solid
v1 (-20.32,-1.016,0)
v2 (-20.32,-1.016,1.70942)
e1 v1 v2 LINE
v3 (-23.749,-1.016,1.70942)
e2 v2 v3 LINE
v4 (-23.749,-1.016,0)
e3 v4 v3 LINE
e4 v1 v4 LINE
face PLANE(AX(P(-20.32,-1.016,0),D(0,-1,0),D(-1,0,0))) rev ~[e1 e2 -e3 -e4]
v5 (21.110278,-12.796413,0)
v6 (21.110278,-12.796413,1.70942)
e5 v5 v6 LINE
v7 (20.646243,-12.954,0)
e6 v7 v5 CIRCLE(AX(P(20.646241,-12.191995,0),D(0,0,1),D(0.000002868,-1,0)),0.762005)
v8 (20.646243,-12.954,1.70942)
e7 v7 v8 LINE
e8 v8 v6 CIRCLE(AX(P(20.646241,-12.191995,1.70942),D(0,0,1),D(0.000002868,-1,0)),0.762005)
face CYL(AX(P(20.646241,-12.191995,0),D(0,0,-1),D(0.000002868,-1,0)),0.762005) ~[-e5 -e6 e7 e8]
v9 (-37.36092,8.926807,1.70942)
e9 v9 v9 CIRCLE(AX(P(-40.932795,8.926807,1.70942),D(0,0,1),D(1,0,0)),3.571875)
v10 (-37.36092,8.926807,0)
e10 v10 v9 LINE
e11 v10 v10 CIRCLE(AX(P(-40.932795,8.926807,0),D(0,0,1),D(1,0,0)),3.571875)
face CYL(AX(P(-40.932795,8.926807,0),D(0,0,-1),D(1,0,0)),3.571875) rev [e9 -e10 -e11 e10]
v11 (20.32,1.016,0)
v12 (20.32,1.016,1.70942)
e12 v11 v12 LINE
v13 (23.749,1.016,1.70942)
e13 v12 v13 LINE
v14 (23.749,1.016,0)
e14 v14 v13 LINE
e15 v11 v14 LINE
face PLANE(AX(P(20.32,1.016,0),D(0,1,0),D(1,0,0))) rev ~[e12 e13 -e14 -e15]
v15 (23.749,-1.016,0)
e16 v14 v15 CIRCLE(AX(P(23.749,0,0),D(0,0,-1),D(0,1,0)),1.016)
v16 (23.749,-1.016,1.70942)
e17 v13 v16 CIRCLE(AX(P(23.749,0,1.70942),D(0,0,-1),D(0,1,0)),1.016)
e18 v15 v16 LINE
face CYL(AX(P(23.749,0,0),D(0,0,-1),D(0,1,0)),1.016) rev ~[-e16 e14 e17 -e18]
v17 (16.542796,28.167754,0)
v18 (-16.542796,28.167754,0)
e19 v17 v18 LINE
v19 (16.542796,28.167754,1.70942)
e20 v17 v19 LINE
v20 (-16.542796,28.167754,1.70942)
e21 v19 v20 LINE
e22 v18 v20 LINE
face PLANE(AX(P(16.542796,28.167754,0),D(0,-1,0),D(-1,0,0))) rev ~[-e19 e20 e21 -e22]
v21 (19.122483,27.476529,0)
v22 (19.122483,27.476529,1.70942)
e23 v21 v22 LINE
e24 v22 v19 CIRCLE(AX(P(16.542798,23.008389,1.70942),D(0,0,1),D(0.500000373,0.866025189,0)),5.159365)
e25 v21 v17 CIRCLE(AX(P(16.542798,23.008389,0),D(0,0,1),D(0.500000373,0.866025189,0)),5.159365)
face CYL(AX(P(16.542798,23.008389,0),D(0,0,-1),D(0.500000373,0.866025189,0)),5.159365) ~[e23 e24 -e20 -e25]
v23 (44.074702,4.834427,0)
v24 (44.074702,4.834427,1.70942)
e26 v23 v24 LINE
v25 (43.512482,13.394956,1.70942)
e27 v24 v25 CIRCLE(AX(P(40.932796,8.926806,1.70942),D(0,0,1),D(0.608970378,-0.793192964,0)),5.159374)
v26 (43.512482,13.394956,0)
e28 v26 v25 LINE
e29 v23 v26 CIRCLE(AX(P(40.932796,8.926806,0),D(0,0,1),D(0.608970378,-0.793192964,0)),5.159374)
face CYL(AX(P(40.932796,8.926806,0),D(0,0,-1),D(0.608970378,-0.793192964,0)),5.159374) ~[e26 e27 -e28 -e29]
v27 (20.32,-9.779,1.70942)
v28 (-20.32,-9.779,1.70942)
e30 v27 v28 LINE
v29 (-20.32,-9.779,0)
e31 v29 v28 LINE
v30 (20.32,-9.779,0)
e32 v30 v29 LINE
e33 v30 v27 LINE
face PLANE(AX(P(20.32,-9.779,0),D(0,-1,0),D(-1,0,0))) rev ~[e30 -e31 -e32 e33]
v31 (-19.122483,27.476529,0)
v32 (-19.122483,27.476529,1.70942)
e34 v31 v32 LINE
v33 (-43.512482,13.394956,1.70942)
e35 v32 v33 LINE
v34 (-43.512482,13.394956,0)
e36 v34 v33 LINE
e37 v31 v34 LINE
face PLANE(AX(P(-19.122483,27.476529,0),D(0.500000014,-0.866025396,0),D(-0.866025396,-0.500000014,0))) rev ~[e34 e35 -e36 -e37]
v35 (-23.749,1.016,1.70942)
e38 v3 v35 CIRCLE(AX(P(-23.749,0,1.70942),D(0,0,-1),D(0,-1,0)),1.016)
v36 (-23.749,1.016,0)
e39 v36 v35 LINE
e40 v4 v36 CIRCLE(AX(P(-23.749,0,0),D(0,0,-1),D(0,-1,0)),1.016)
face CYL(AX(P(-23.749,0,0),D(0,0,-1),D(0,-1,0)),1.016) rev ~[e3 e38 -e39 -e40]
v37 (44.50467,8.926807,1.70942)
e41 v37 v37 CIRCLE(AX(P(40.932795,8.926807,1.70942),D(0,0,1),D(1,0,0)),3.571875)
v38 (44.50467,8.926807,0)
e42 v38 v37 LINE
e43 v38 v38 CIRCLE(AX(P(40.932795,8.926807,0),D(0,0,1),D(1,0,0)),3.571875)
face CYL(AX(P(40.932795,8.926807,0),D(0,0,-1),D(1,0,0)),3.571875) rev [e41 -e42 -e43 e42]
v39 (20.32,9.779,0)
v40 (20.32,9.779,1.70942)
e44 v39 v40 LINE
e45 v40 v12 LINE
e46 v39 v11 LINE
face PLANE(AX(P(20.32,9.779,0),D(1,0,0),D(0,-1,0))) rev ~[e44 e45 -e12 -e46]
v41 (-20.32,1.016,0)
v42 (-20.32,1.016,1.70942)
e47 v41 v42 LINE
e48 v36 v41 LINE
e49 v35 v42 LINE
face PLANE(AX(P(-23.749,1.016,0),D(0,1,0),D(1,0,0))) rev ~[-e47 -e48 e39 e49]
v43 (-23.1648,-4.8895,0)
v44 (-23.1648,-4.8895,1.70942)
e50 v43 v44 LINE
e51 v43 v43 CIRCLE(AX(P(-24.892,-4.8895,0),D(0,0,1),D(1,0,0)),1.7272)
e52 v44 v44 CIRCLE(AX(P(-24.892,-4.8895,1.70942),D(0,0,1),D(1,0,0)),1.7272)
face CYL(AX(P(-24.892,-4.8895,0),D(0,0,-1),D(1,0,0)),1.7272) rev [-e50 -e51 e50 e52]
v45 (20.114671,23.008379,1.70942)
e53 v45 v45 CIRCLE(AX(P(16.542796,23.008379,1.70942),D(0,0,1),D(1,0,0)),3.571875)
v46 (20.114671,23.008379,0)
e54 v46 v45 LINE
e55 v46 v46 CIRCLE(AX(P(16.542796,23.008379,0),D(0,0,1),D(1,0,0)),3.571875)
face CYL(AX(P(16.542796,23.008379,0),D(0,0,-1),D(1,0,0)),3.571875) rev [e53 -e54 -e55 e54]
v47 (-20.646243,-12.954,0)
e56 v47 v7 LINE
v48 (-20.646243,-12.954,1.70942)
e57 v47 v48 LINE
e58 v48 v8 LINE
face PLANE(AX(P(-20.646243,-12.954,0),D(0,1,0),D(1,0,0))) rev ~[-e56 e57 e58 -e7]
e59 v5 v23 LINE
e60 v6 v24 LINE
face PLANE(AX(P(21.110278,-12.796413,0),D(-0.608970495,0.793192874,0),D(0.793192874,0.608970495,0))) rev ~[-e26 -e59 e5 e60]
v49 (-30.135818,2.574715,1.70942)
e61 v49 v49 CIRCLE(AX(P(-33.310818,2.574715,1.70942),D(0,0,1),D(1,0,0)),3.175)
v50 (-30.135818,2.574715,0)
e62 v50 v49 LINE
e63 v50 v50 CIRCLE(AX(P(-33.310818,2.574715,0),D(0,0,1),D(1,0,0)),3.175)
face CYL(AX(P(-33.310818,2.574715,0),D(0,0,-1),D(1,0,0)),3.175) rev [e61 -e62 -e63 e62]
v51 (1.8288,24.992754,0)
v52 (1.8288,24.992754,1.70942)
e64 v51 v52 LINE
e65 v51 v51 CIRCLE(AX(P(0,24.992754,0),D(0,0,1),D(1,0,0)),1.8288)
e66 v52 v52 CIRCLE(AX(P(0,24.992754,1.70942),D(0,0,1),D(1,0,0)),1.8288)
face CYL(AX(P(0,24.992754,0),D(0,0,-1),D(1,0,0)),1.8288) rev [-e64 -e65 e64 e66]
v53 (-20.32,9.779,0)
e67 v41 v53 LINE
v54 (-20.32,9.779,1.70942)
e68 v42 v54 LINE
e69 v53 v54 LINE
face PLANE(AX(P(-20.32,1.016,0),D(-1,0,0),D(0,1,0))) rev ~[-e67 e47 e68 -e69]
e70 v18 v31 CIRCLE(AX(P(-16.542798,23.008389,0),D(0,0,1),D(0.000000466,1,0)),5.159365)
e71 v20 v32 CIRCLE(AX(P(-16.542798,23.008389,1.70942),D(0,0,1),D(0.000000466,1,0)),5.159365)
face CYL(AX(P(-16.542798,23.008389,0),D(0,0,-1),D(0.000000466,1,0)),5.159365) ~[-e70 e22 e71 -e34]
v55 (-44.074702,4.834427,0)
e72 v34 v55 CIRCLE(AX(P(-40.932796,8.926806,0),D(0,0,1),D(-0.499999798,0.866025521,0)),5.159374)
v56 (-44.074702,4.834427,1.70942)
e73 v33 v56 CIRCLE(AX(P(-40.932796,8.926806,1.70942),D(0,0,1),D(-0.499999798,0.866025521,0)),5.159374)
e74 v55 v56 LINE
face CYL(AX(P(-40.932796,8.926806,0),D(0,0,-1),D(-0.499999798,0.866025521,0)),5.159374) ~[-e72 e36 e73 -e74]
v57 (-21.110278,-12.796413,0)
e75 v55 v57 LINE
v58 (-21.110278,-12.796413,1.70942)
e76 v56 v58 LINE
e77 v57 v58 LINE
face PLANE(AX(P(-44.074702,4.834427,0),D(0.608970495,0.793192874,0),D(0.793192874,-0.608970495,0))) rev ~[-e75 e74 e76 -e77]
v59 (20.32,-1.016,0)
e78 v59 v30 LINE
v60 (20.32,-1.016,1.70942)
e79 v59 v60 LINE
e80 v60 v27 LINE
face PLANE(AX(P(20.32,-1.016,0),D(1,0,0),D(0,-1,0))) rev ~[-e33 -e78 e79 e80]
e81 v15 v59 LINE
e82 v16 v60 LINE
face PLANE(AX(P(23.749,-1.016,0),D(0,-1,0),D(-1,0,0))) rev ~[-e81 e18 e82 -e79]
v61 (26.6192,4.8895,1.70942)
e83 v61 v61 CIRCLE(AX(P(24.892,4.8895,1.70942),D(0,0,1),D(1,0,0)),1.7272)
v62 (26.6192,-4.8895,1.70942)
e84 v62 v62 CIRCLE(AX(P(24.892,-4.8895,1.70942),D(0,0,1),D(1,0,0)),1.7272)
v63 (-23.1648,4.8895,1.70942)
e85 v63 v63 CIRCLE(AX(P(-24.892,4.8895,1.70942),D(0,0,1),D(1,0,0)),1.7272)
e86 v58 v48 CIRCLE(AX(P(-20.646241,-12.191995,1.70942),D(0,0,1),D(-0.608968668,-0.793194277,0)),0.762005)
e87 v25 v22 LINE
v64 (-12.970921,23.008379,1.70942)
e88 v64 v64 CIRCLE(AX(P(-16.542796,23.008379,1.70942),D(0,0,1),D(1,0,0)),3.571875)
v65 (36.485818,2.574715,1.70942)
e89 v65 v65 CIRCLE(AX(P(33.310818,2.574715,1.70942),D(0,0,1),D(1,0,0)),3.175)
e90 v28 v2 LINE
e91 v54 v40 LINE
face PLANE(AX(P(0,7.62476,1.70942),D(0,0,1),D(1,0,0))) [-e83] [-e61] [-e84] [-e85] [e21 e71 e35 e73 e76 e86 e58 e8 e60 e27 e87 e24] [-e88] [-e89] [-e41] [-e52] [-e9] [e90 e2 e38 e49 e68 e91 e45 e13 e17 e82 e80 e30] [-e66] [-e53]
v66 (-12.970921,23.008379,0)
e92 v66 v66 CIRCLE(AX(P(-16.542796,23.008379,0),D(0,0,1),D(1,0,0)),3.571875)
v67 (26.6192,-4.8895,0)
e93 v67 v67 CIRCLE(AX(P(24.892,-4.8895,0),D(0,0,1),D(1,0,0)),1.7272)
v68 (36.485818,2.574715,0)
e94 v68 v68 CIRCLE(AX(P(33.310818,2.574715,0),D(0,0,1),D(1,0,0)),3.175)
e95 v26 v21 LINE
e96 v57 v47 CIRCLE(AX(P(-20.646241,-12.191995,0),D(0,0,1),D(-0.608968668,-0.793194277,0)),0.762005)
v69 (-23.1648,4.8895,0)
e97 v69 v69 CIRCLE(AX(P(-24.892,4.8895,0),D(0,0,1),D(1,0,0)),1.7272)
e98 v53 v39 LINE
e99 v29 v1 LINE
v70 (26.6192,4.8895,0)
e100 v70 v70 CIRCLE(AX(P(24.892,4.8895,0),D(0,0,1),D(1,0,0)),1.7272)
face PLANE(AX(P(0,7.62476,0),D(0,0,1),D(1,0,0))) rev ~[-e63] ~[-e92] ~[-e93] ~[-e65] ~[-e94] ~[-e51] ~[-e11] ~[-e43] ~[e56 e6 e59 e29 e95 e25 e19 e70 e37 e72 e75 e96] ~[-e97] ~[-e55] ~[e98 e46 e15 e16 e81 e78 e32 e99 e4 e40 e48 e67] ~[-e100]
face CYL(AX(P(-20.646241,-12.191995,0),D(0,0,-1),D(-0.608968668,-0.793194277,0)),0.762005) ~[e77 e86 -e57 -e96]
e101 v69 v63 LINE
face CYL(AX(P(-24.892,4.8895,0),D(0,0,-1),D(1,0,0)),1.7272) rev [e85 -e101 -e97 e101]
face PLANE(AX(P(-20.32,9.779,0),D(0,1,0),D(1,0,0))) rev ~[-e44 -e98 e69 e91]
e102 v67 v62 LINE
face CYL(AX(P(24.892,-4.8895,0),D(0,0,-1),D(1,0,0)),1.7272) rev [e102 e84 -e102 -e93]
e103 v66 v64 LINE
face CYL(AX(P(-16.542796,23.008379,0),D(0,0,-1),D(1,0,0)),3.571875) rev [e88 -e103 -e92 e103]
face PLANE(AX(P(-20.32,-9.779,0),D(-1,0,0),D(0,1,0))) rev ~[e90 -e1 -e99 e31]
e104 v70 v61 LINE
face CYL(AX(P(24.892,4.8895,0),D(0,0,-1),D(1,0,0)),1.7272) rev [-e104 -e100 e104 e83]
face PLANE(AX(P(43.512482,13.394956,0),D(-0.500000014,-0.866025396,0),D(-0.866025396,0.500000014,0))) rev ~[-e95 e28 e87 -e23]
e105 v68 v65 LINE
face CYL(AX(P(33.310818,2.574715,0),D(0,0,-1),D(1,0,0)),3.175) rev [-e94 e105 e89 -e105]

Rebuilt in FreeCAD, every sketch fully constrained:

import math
import FreeCAD as App
import Part
import Sketcher
Q = App.Units.Quantity

doc = App.newDocument("Part")
params = doc.addObject("Spreadsheet::Sheet", "Params")
for row, (alias, value) in enumerate([
    ("sketch1_diameter", "0.25 in"),
    ("sketch1_radius", "0.0300002 in"),
    ("sketch1_radius2", "0.04 in"),
    ("sketch1_diameter2", "0.136 in"),
    ("sketch1_diameter3", "0.28125 in"),
    ("pad1_length", "0.0673 in"),
], start=1):
    params.set(f"A{row}", alias)
    params.set(f"B{row}", "=" + value)
    params.setAlias(f"B{row}", alias)

body = doc.addObject("PartDesign::Body", "Body")

# Sketch on XY plane
sketch1 = body.newObject("Sketcher::SketchObject", "Sketch")
sketch1.AttachmentSupport = (doc.getObject("XY_Plane"), [""])
sketch1.MapMode = "FlatFace"
sketch1.addGeometry(Part.LineSegment(App.Vector(16.54, 28.17, 0), App.Vector(-16.54, 28.17, 0)), False)
sketch1.addGeometry(Part.ArcOfCircle(Part.Circle(App.Vector(-16.54, 23.01, 0), App.Vector(0, 0, 1), 5.16), math.radians(90), math.radians(120)), False)
sketch1.addGeometry(Part.LineSegment(App.Vector(-19.12, 27.48, 0), App.Vector(-43.51, 13.39, 0)), False)
sketch1.addGeometry(Part.ArcOfCircle(Part.Circle(App.Vector(-40.93, 8.93, 0), App.Vector(0, 0, 1), 5.16), math.radians(120), math.radians(232)), False)
sketch1.addGeometry(Part.LineSegment(App.Vector(-44.07, 4.83, 0), App.Vector(-21.11, -12.8, 0)), False)
sketch1.addGeometry(Part.ArcOfCircle(Part.Circle(App.Vector(-20.65, -12.19, 0), App.Vector(0, 0, 1), 0.76), math.radians(-128), math.radians(-90)), False)
sketch1.addGeometry(Part.LineSegment(App.Vector(-20.65, -12.95, 0), App.Vector(20.65, -12.95, 0)), False)
sketch1.addGeometry(Part.ArcOfCircle(Part.Circle(App.Vector(20.65, -12.19, 0), App.Vector(0, 0, 1), 0.76), math.radians(-90), math.radians(-52)), False)
sketch1.addGeometry(Part.LineSegment(App.Vector(21.11, -12.8, 0), App.Vector(44.07, 4.83, 0)), False)
sketch1.addGeometry(Part.ArcOfCircle(Part.Circle(App.Vector(40.93, 8.93, 0), App.Vector(0, 0, 1), 5.16), math.radians(-52), math.radians(60)), False)
sketch1.addGeometry(Part.LineSegment(App.Vector(43.51, 13.39, 0), App.Vector(19.12, 27.48, 0)), False)
sketch1.addGeometry(Part.ArcOfCircle(Part.Circle(App.Vector(16.54, 23.01, 0), App.Vector(0, 0, 1), 5.16), math.radians(60), math.radians(90)), False)
sketch1.addGeometry(Part.Circle(App.Vector(-24.89, -4.89, 0), App.Vector(0, 0, 1), 1.73), False)
sketch1.addGeometry(Part.Circle(App.Vector(-33.31, 2.57, 0), App.Vector(0, 0, 1), 3.17), False)
sketch1.addGeometry(Part.Circle(App.Vector(-24.89, 4.89, 0), App.Vector(0, 0, 1), 1.73), False)
sketch1.addGeometry(Part.Circle(App.Vector(24.89, -4.89, 0), App.Vector(0, 0, 1), 1.73), False)
sketch1.addGeometry(Part.ArcOfCircle(Part.Circle(App.Vector(23.75, 0, 0), App.Vector(0, 0, 1), 1.02), math.radians(-90), math.radians(90)), False)
sketch1.addGeometry(Part.LineSegment(App.Vector(23.75, -1.02, 0), App.Vector(20.32, -1.02, 0)), False)
sketch1.addGeometry(Part.LineSegment(App.Vector(20.32, -1.02, 0), App.Vector(20.32, -9.78, 0)), False)
sketch1.addGeometry(Part.LineSegment(App.Vector(20.32, -9.78, 0), App.Vector(-20.32, -9.78, 0)), False)
sketch1.addGeometry(Part.LineSegment(App.Vector(-20.32, -9.78, 0), App.Vector(-20.32, -1.02, 0)), False)
sketch1.addGeometry(Part.LineSegment(App.Vector(-20.32, -1.02, 0), App.Vector(-23.75, -1.02, 0)), False)
sketch1.addGeometry(Part.ArcOfCircle(Part.Circle(App.Vector(-23.75, 0, 0), App.Vector(0, 0, 1), 1.02), math.radians(90), math.radians(270)), False)
sketch1.addGeometry(Part.LineSegment(App.Vector(-23.75, 1.02, 0), App.Vector(-20.32, 1.02, 0)), False)
sketch1.addGeometry(Part.LineSegment(App.Vector(-20.32, 1.02, 0), App.Vector(-20.32, 9.78, 0)), False)
sketch1.addGeometry(Part.LineSegment(App.Vector(-20.32, 9.78, 0), App.Vector(20.32, 9.78, 0)), False)
sketch1.addGeometry(Part.LineSegment(App.Vector(20.32, 9.78, 0), App.Vector(20.32, 1.02, 0)), False)
sketch1.addGeometry(Part.LineSegment(App.Vector(20.32, 1.02, 0), App.Vector(23.75, 1.02, 0)), False)
sketch1.addGeometry(Part.Circle(App.Vector(33.31, 2.57, 0), App.Vector(0, 0, 1), 3.17), False)
sketch1.addGeometry(Part.Circle(App.Vector(24.89, 4.89, 0), App.Vector(0, 0, 1), 1.73), False)
sketch1.addGeometry(Part.Circle(App.Vector(-40.93, 8.93, 0), App.Vector(0, 0, 1), 3.57), False)
sketch1.addGeometry(Part.Circle(App.Vector(-16.54, 23.01, 0), App.Vector(0, 0, 1), 3.57), False)
sketch1.addGeometry(Part.Circle(App.Vector(40.93, 8.93, 0), App.Vector(0, 0, 1), 3.57), False)
sketch1.addGeometry(Part.Circle(App.Vector(0, 24.99, 0), App.Vector(0, 0, 1), 1.83), False)
sketch1.addGeometry(Part.Circle(App.Vector(16.54, 23.01, 0), App.Vector(0, 0, 1), 3.57), False)
sketch1.addConstraint(Sketcher.Constraint("Tangent", 0, 2, 1, 1))
sketch1.addConstraint(Sketcher.Constraint("Tangent", 1, 2, 2, 1))
sketch1.addConstraint(Sketcher.Constraint("Tangent", 2, 2, 3, 1))
sketch1.addConstraint(Sketcher.Constraint("Tangent", 3, 2, 4, 1))
sketch1.addConstraint(Sketcher.Constraint("Coincident", 4, 2, 5, 1))
sketch1.addConstraint(Sketcher.Constraint("Coincident", 5, 2, 6, 1))
sketch1.addConstraint(Sketcher.Constraint("Coincident", 6, 2, 7, 1))
sketch1.addConstraint(Sketcher.Constraint("Coincident", 7, 2, 8, 1))
sketch1.addConstraint(Sketcher.Constraint("Tangent", 8, 2, 9, 1))
sketch1.addConstraint(Sketcher.Constraint("Tangent", 9, 2, 10, 1))
sketch1.addConstraint(Sketcher.Constraint("Tangent", 10, 2, 11, 1))
sketch1.addConstraint(Sketcher.Constraint("Tangent", 11, 2, 0, 1))
sketch1.addConstraint(Sketcher.Constraint("Tangent", 16, 1, 17, 1))
sketch1.addConstraint(Sketcher.Constraint("Coincident", 17, 2, 18, 1))
sketch1.addConstraint(Sketcher.Constraint("Coincident", 18, 2, 19, 1))
sketch1.addConstraint(Sketcher.Constraint("Coincident", 19, 2, 20, 1))
sketch1.addConstraint(Sketcher.Constraint("Coincident", 20, 2, 21, 1))
sketch1.addConstraint(Sketcher.Constraint("Tangent", 21, 2, 22, 2))
sketch1.addConstraint(Sketcher.Constraint("Tangent", 22, 1, 23, 1))
sketch1.addConstraint(Sketcher.Constraint("Coincident", 23, 2, 24, 1))
sketch1.addConstraint(Sketcher.Constraint("Coincident", 24, 2, 25, 1))
sketch1.addConstraint(Sketcher.Constraint("Coincident", 25, 2, 26, 1))
sketch1.addConstraint(Sketcher.Constraint("Coincident", 26, 2, 27, 1))
sketch1.addConstraint(Sketcher.Constraint("Tangent", 27, 2, 16, 2))
sketch1.addConstraint(Sketcher.Constraint("Horizontal", 0))
sketch1.addConstraint(Sketcher.Constraint("Horizontal", 6))
sketch1.addConstraint(Sketcher.Constraint("Horizontal", 17))
sketch1.addConstraint(Sketcher.Constraint("Vertical", 18))
sketch1.addConstraint(Sketcher.Constraint("Horizontal", 19))
sketch1.addConstraint(Sketcher.Constraint("Vertical", 20))
sketch1.addConstraint(Sketcher.Constraint("Horizontal", 21))
sketch1.addConstraint(Sketcher.Constraint("Horizontal", 23))
sketch1.addConstraint(Sketcher.Constraint("Vertical", 24))
sketch1.addConstraint(Sketcher.Constraint("Horizontal", 25))
sketch1.addConstraint(Sketcher.Constraint("Vertical", 26))
sketch1.addConstraint(Sketcher.Constraint("Horizontal", 27))
sketch1.addConstraint(Sketcher.Constraint("Coincident", 30, 3, 3, 3))
sketch1.addConstraint(Sketcher.Constraint("Coincident", 31, 3, 1, 3))
sketch1.addConstraint(Sketcher.Constraint("Coincident", 32, 3, 9, 3))
sketch1.addConstraint(Sketcher.Constraint("Coincident", 34, 3, 11, 3))
sketch1.addConstraint(Sketcher.Constraint("Equal", 5, 7))
sketch1.addConstraint(Sketcher.Constraint("Equal", 3, 9))
sketch1.addConstraint(Sketcher.Constraint("Equal", 1, 11))
sketch1.addConstraint(Sketcher.Constraint("Equal", 12, 14))
sketch1.addConstraint(Sketcher.Constraint("Equal", 14, 15))
sketch1.addConstraint(Sketcher.Constraint("Equal", 16, 22))
sketch1.addConstraint(Sketcher.Constraint("Equal", 13, 28))
sketch1.addConstraint(Sketcher.Constraint("Equal", 15, 29))
sketch1.addConstraint(Sketcher.Constraint("Equal", 30, 31))
sketch1.addConstraint(Sketcher.Constraint("Equal", 31, 32))
sketch1.addConstraint(Sketcher.Constraint("Equal", 32, 34))
sketch1.addConstraint(Sketcher.Constraint("Symmetric", 14, 3, 15, 3, -1, 1))
sketch1.addConstraint(Sketcher.Constraint("Symmetric", 16, 3, 22, 3, -1, 1))
sketch1.addConstraint(Sketcher.Constraint("Symmetric", 12, 3, 29, 3, -1, 1))
sketch1.addConstraint(Sketcher.Constraint("Symmetric", 18, 2, 24, 2, -1, 1))
sketch1.addConstraint(Sketcher.Constraint("Symmetric", 3, 3, 9, 3, -2))
sketch1.addConstraint(Sketcher.Constraint("Symmetric", 12, 3, 15, 3, -2))
sketch1.addConstraint(Sketcher.Constraint("Symmetric", 13, 3, 28, 3, -2))
sketch1.addConstraint(Sketcher.Constraint("Symmetric", 4, 2, 7, 2, -2))
sketch1.addConstraint(Sketcher.Constraint("Symmetric", 17, 2, 20, 2, -2))
sketch1.addConstraint(Sketcher.Constraint("PointOnObject", 33, 3, -2))
sketch1.addConstraint(Sketcher.Constraint("Horizontal", 2, 2, 9, 2))
sketch1.addConstraint(Sketcher.Constraint("Vertical", 18, 2, 25, 2))
sketch1.addConstraint(Sketcher.Constraint("Diameter", 13, Q("0.25 in")))
sketch1.addConstraint(Sketcher.Constraint("Radius", 5, Q("0.0300002 in")))
sketch1.addConstraint(Sketcher.Constraint("Radius", 16, Q("0.04 in")))
sketch1.addConstraint(Sketcher.Constraint("Diameter", 12, Q("0.136 in")))
sketch1.addConstraint(Sketcher.Constraint("Diameter", 30, Q("0.28125 in")))
sketch1.addConstraint(Sketcher.Constraint("Diameter", 33, Q("0.144 in")))
sketch1.addConstraint(Sketcher.Constraint("DistanceX", 19, 2, 19, 1, Q("1.6 in")))
sketch1.addConstraint(Sketcher.Constraint("Angle", 2, Q("-149.999999 deg")))
sketch1.addConstraint(Sketcher.Constraint("Radius", 3, Q("0.203125 in")))
sketch1.addConstraint(Sketcher.Constraint("DistanceX", 17, 2, 17, 1, Q("0.135 in")))
sketch1.addConstraint(Sketcher.Constraint("DistanceY", 18, 2, 18, 1, Q("0.345 in")))
sketch1.addConstraint(Sketcher.Constraint("DistanceY", 5, 3, -1, 1, Q("0.4799998 in")))
sketch1.addConstraint(Sketcher.Constraint("DistanceX", 12, 3, -1, 1, Q("0.98 in")))
sketch1.addConstraint(Sketcher.Constraint("DistanceY", 12, 3, 14, 3, Q("0.385 in")))
sketch1.addConstraint(Sketcher.Constraint("DistanceY", 31, 3, 33, 3, Q("0.078125 in")))
sketch1.addConstraint(Sketcher.Constraint("DistanceY", 31, 3, 0, 2, Q("0.203125 in")))
sketch1.addConstraint(Sketcher.Constraint("DistanceX", 0, 2, 0, 1, 33.085592))
sketch1.addConstraint(Sketcher.Constraint("DistanceX", 3, 2, -1, 1, 44.074702))
sketch1.addConstraint(Sketcher.Constraint("DistanceY", 5, 3, 3, 3, 21.118801))
sketch1.addConstraint(Sketcher.Constraint("DistanceX", 30, 3, 31, 3, 24.389999))
sketch1.addConstraint(Sketcher.Constraint("Distance", 4, 28.951879))
sketch1.addConstraint(Sketcher.Constraint("DistanceX", 6, 1, 6, 2, 41.292486))
sketch1.addConstraint(Sketcher.Constraint("DistanceY", 13, 3, 3, 3, 6.352091))
sketch1.addConstraint(Sketcher.Constraint("DistanceX", 13, 3, 1, 3, 16.76802))
sketch1.addConstraint(Sketcher.Constraint("DistanceX", 5, 2, -1, 1, 20.646243))
sketch1.setExpression("Constraints[63]", "Params.sketch1_diameter")
sketch1.setExpression("Constraints[64]", "Params.sketch1_radius")
sketch1.setExpression("Constraints[65]", "Params.sketch1_radius2")
sketch1.setExpression("Constraints[66]", "Params.sketch1_diameter2")
sketch1.setExpression("Constraints[67]", "Params.sketch1_diameter3")
pad1 = body.newObject("PartDesign::Pad", "Pad")
pad1.Profile = sketch1
pad1.setExpression("Length", "Params.pad1_length")

doc.recompute()
